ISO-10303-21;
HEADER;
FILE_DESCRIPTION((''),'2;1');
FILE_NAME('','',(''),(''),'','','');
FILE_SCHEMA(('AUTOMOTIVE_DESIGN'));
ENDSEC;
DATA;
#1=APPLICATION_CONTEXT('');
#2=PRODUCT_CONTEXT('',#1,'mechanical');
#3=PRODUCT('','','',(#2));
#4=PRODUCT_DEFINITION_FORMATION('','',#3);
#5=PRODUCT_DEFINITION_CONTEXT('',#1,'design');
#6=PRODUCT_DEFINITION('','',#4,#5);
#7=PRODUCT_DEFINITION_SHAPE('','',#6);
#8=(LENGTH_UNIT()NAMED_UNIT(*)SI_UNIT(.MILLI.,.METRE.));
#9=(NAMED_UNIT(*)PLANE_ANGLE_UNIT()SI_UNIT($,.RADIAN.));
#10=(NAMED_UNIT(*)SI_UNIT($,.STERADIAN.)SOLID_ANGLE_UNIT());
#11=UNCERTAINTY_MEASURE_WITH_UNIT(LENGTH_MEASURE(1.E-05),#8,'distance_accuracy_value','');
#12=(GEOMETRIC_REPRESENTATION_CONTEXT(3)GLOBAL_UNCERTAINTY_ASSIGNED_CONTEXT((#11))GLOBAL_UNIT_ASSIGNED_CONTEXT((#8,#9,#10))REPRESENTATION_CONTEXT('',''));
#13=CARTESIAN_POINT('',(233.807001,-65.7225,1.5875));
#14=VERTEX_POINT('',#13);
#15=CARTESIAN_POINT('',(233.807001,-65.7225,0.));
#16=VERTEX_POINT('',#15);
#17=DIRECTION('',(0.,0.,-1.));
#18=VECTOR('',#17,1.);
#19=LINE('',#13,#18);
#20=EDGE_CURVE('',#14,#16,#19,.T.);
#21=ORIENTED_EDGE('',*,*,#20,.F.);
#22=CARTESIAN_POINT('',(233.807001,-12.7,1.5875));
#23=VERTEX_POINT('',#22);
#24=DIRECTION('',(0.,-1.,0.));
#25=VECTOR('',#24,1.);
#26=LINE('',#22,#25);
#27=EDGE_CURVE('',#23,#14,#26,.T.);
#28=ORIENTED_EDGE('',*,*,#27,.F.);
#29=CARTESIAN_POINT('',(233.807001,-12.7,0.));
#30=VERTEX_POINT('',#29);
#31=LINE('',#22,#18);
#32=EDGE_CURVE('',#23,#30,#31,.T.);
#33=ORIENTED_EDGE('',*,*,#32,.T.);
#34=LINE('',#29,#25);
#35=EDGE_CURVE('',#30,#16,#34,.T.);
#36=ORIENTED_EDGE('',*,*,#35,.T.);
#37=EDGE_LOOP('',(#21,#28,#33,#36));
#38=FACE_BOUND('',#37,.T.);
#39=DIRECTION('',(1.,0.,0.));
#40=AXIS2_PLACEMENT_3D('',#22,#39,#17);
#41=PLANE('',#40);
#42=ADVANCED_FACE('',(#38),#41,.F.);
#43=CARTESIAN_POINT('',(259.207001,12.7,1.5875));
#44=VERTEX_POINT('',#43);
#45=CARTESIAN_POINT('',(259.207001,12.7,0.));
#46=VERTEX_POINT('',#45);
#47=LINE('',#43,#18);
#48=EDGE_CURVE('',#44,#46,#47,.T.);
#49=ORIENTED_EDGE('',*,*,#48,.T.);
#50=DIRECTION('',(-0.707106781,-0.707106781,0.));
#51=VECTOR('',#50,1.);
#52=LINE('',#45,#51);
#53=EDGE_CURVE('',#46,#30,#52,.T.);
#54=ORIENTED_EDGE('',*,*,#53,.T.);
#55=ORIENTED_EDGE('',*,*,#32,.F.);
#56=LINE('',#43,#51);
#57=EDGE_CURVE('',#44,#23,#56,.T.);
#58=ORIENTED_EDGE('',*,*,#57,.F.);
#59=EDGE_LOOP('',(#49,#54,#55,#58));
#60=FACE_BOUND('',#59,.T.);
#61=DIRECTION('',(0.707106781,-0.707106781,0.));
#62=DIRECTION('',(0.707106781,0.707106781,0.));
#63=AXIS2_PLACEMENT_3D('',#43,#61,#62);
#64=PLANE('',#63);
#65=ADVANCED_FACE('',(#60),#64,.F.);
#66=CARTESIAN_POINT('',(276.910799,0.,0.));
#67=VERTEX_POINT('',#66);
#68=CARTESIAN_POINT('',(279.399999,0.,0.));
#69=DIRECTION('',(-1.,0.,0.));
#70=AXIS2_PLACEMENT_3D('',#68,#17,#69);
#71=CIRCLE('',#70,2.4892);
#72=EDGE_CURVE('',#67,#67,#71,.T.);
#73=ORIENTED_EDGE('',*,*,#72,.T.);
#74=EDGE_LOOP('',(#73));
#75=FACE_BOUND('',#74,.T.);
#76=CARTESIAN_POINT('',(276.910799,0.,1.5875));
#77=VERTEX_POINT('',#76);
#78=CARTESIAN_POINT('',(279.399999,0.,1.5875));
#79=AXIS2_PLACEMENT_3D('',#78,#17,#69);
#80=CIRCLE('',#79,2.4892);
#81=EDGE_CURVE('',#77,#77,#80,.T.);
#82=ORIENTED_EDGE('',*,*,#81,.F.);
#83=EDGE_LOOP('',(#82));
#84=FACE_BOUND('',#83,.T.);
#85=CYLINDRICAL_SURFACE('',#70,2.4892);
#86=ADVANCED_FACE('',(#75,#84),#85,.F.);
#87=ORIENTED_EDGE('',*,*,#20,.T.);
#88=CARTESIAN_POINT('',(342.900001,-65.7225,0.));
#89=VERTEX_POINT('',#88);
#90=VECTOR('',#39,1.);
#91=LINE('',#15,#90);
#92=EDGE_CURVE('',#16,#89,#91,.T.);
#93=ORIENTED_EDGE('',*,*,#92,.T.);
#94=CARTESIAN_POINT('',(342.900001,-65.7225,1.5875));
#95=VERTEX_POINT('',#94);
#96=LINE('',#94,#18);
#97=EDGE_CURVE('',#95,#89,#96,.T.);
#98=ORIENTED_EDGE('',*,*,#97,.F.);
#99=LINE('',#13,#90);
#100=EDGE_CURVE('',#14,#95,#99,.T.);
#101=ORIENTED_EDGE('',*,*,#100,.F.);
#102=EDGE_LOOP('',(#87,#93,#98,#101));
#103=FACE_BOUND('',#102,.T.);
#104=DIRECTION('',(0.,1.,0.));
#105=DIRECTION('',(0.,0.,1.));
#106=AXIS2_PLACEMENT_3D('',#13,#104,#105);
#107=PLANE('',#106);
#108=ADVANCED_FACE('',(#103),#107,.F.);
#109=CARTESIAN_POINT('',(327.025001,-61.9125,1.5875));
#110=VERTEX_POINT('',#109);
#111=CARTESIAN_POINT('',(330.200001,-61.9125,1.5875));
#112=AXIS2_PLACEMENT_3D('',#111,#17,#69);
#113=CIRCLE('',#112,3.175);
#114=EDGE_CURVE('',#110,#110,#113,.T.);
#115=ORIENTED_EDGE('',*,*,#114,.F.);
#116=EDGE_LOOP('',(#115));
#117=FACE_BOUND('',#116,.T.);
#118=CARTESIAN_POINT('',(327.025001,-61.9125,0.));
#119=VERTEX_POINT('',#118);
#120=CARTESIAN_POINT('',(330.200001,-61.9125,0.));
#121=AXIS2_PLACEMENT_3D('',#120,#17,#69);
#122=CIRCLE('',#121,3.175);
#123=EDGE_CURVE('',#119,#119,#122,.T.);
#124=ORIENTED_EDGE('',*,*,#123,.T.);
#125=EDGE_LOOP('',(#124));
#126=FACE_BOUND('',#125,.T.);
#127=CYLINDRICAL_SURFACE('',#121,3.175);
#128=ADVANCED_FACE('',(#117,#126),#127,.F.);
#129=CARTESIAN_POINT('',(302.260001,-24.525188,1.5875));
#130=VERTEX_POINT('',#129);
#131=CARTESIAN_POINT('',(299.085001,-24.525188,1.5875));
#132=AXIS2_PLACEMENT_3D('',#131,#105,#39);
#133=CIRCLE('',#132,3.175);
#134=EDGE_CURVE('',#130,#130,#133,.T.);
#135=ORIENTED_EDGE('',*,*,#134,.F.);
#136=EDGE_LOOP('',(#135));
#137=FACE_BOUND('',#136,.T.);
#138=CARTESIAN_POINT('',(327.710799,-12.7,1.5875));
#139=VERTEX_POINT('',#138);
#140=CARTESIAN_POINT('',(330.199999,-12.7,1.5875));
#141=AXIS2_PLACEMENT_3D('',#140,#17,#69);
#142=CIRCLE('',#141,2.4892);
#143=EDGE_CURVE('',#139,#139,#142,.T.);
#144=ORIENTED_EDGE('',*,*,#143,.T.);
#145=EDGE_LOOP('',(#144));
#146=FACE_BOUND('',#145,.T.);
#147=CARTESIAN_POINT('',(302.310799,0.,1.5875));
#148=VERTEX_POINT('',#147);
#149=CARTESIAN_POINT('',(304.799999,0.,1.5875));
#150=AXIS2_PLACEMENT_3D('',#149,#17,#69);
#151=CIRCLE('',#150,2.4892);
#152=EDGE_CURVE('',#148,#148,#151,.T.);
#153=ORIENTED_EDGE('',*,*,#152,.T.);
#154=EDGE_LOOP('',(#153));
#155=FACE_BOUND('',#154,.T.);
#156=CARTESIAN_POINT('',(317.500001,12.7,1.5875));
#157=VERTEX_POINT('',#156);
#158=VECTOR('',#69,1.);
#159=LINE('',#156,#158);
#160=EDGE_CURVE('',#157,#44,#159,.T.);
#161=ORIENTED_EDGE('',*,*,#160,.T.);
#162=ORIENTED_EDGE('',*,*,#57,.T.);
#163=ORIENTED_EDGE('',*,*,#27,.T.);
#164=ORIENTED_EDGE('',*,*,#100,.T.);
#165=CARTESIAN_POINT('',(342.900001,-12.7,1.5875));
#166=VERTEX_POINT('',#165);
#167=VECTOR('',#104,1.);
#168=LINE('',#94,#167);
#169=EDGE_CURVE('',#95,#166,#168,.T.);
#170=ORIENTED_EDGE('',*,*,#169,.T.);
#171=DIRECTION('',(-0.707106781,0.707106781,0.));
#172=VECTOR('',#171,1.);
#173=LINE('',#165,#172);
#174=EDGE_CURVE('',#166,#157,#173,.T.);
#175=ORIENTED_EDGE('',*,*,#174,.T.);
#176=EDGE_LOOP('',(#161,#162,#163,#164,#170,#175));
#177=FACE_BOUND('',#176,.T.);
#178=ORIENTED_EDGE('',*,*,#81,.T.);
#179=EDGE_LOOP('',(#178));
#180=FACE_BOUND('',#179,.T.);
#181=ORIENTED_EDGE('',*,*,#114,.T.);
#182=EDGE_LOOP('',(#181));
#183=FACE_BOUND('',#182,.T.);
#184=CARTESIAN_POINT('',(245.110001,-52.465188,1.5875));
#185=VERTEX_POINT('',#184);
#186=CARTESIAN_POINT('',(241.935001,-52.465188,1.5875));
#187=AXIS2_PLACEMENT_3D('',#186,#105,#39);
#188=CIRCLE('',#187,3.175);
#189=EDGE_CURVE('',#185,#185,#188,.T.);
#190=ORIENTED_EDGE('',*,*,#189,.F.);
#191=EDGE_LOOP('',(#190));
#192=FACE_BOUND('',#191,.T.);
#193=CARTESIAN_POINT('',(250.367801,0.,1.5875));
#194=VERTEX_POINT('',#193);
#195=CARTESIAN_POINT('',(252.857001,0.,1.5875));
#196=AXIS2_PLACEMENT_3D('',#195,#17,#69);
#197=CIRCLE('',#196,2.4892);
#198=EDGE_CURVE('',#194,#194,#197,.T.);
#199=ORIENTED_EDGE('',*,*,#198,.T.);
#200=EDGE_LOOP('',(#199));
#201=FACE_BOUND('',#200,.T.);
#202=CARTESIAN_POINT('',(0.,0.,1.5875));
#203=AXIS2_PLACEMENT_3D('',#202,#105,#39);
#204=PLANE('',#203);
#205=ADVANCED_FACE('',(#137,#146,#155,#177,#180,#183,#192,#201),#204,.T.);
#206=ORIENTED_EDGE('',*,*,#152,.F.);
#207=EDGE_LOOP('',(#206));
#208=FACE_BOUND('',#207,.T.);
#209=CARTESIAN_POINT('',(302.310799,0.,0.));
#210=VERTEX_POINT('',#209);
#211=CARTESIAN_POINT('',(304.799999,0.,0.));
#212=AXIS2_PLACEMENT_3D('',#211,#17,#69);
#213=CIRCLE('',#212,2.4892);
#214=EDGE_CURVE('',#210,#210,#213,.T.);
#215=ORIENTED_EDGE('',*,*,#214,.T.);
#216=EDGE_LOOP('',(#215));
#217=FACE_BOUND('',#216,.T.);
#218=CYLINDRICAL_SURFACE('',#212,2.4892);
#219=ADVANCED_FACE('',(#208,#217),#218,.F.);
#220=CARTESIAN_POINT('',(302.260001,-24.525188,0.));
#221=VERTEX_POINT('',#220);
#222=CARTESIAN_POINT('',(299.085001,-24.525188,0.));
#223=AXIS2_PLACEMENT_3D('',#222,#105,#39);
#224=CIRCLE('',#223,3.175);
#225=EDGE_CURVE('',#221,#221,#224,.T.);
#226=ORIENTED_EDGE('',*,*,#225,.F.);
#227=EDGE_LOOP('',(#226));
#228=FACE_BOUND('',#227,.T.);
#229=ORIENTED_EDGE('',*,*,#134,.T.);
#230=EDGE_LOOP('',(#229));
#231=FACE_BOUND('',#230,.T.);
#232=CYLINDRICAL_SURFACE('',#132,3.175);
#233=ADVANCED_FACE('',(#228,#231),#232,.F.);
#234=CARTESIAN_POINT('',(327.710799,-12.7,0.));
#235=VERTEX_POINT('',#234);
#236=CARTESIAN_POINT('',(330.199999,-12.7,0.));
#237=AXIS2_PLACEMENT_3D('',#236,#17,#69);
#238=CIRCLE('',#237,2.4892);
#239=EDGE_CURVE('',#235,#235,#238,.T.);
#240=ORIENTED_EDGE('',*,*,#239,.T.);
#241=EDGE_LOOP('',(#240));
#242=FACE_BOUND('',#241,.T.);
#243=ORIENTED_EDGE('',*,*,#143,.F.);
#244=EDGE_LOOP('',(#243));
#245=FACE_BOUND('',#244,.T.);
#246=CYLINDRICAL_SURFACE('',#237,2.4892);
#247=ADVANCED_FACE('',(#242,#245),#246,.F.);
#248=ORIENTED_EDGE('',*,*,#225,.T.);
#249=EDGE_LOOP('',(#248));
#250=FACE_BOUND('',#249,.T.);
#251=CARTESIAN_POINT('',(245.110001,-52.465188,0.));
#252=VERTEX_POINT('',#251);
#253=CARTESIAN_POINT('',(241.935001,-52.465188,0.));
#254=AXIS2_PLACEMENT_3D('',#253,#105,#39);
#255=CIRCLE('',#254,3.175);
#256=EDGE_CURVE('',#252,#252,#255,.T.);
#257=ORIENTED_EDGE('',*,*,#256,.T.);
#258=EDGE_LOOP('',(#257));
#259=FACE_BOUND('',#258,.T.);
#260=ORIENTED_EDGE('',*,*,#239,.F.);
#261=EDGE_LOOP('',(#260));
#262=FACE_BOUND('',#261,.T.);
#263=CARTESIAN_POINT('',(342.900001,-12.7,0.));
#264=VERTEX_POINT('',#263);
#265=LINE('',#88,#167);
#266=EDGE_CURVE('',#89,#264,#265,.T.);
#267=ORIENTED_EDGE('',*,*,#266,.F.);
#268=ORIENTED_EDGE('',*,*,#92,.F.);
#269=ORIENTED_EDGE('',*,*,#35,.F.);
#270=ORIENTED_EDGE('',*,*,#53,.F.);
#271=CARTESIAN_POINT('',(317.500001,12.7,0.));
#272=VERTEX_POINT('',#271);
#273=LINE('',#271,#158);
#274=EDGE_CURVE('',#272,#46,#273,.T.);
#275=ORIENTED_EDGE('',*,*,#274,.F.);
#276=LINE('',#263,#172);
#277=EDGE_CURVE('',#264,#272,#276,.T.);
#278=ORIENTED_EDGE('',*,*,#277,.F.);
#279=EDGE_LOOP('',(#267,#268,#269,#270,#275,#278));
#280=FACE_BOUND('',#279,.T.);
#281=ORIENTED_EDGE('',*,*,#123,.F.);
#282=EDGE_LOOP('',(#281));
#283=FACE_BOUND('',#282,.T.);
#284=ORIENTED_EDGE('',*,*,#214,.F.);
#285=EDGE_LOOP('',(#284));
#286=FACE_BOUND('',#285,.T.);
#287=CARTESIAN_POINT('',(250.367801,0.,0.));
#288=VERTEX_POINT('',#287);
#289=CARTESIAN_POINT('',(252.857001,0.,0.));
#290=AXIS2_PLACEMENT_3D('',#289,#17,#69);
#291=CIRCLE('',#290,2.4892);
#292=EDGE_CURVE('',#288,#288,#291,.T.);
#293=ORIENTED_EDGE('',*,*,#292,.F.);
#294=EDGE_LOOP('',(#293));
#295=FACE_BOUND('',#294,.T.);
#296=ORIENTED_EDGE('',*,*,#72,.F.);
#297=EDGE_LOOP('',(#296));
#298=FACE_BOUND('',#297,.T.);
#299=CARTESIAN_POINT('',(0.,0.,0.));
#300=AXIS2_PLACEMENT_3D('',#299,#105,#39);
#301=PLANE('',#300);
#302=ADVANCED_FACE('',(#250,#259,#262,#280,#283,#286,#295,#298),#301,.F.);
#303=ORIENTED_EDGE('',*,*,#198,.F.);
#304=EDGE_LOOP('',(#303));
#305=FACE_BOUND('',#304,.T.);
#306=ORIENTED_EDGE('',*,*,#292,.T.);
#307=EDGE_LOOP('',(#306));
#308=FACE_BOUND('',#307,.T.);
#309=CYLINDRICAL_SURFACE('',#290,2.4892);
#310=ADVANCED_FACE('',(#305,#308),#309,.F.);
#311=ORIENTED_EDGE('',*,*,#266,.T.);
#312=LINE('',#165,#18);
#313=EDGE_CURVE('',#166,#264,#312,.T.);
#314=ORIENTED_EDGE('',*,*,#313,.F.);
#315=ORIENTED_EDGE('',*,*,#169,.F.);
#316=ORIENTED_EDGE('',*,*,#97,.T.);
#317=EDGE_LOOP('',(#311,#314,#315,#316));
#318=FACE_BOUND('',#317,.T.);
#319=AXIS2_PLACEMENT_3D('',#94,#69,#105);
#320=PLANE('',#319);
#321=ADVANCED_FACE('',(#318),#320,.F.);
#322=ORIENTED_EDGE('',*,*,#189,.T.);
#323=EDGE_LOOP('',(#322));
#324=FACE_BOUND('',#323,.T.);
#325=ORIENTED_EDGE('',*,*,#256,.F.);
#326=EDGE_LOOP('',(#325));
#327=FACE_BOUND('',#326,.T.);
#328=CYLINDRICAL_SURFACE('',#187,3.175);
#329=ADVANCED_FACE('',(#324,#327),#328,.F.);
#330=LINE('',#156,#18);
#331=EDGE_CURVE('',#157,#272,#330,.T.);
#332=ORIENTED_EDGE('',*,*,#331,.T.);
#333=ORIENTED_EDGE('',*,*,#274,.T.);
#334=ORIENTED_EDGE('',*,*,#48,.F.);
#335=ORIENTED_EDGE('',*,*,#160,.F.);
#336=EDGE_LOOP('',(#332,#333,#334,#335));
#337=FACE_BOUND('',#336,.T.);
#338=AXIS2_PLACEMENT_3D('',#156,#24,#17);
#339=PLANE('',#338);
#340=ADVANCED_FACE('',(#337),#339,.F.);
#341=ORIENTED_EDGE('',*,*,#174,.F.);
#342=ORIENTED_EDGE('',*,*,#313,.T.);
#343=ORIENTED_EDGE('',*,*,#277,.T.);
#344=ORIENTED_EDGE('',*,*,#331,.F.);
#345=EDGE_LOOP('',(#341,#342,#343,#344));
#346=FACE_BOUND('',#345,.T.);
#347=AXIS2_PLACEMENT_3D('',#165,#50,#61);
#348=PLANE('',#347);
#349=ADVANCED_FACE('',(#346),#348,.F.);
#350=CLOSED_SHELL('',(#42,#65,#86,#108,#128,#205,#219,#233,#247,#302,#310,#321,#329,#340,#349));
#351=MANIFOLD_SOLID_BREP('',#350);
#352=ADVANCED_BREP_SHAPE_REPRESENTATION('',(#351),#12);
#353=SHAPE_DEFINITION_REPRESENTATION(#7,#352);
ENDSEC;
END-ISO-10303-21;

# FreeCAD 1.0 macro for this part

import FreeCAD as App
import Part
import Sketcher
from FreeCAD import Vector
Q = App.Units.Quantity

doc = App.newDocument("Part")
body = doc.addObject("PartDesign::Body", "Body")

sketch1 = body.newObject("Sketcher::SketchObject", "Sketch")
sketch1.AttachmentSupport = (doc.getObject("XY_Plane"), [""])
sketch1.MapMode = "FlatFace"
sketch1.addGeometry(Part.LineSegment(Vector(234, -13, 0), Vector(234, -66, 0)), False)
sketch1.addGeometry(Part.LineSegment(Vector(234, -66, 0), Vector(343, -66, 0)), False)
sketch1.addGeometry(Part.LineSegment(Vector(343, -66, 0), Vector(343, -13, 0)), False)
sketch1.addGeometry(Part.LineSegment(Vector(343, -13, 0), Vector(318, 13, 0)), False)
sketch1.addGeometry(Part.LineSegment(Vector(318, 13, 0), Vector(259, 13, 0)), False)
sketch1.addGeometry(Part.LineSegment(Vector(259, 13, 0), Vector(234, -13, 0)), False)
sketch1.addConstraint(Sketcher.Constraint("Coincident", 0, 2, 1, 1))
sketch1.addConstraint(Sketcher.Constraint("Coincident", 1, 2, 2, 1))
sketch1.addConstraint(Sketcher.Constraint("Coincident", 2, 2, 3, 1))
sketch1.addConstraint(Sketcher.Constraint("Coincident", 3, 2, 4, 1))
sketch1.addConstraint(Sketcher.Constraint("Coincident", 4, 2, 5, 1))
sketch1.addConstraint(Sketcher.Constraint("Coincident", 5, 2, 0, 1))
sketch1.addConstraint(Sketcher.Constraint("Vertical", 0))
sketch1.addConstraint(Sketcher.Constraint("Horizontal", 1))
sketch1.addConstraint(Sketcher.Constraint("Vertical", 2))
sketch1.addConstraint(Sketcher.Constraint("Horizontal", 4))
sketch1.addConstraint(Sketcher.Constraint("Perpendicular", 3, 5))
sketch1.addConstraint(Sketcher.Constraint("Horizontal", 2, 2, 5, 2))
sketch1.addConstraint(Sketcher.Constraint("Equal", 3, 5))
sketch1.addConstraint(Sketcher.Constraint("DistanceX", 3, 2, 2, 2, Q("1 in")))
sketch1.addConstraint(Sketcher.Constraint("DistanceX", -1, 1, 1, 2, Q("13.5 in")))
sketch1.addConstraint(Sketcher.Constraint("DistanceY", 2, 2, -1, 1, Q("0.5 in")))
sketch1.addConstraint(Sketcher.Constraint("DistanceX", 1, 1, 1, 2, Q("4.295 in")))
sketch1.addConstraint(Sketcher.Constraint("DistanceY", 0, 2, 0, 1, Q("2.0875 in")))
pad1 = body.newObject("PartDesign::Pad", "Pad")
pad1.Profile = sketch1
pad1.Length = Q("0.0625 in")

sketch2 = body.newObject("Sketcher::SketchObject", "Sketch001")
sketch2.AttachmentSupport = (doc.getObject("XY_Plane"), [""])
sketch2.MapMode = "FlatFace"
sketch2.addGeometry(Part.Circle(Vector(330.2, -12.7, 0), Vector(0, 0, 1), 2.5), False)
sketch2.addGeometry(Part.Circle(Vector(304.8, 0, 0), Vector(0, 0, 1), 2.5), False)
sketch2.addGeometry(Part.Circle(Vector(279.4, 0, 0), Vector(0, 0, 1), 2.5), False)
sketch2.addGeometry(Part.Circle(Vector(252.9, 0, 0), Vector(0, 0, 1), 2.5), False)
sketch2.addConstraint(Sketcher.Constraint("Equal", 0, 1))
sketch2.addConstraint(Sketcher.Constraint("Equal", 1, 2))
sketch2.addConstraint(Sketcher.Constraint("Equal", 2, 3))
sketch2.addConstraint(Sketcher.Constraint("PointOnObject", 1, 3, -1))
sketch2.addConstraint(Sketcher.Constraint("PointOnObject", 2, 3, -1))
sketch2.addConstraint(Sketcher.Constraint("PointOnObject", 3, 3, -1))
sketch2.addConstraint(Sketcher.Constraint("Diameter", 0, Q("0.196 in")))
sketch2.addConstraint(Sketcher.Constraint("DistanceX", -1, 1, 0, 3, Q("13 in")))
sketch2.addConstraint(Sketcher.Constraint("DistanceX", -1, 1, 1, 3, Q("12 in")))
sketch2.addConstraint(Sketcher.Constraint("DistanceX", -1, 1, 2, 3, Q("11 in")))
sketch2.addConstraint(Sketcher.Constraint("DistanceY", 0, 3, -1, 1, Q("0.5 in")))
sketch2.addConstraint(Sketcher.Constraint("DistanceX", -1, 1, 3, 3, Q("9.955 in")))
doc.recompute()
hole = body.newObject("PartDesign::Hole", "Hole")
hole.Profile = sketch2
hole.ThreadType = "None"
hole.Diameter = Q("0.196 in")
hole.DepthType = "ThroughAll"
hole.Reversed = True

sketch3 = body.newObject("Sketcher::SketchObject", "Sketch002")
sketch3.AttachmentSupport = (doc.getObject("XY_Plane"), [""])
sketch3.MapMode = "FlatFace"
sketch3.addGeometry(Part.Circle(Vector(330.2, -61.9, 0), Vector(0, 0, 1), 3.2), False)
sketch3.addConstraint(Sketcher.Constraint("Diameter", 0, Q("0.25 in")))
sketch3.addConstraint(Sketcher.Constraint("DistanceX", -1, 1, 0, 3, Q("13 in")))
sketch3.addConstraint(Sketcher.Constraint("DistanceY", 0, 3, -1, 1, Q("2.4375 in")))
doc.recompute()
hole2 = body.newObject("PartDesign::Hole", "Hole001")
hole2.Profile = sketch3
hole2.ThreadType = "None"
hole2.Diameter = Q("0.25 in")
hole2.DepthType = "ThroughAll"
hole2.Reversed = True

sketch4 = body.newObject("Sketcher::SketchObject", "Sketch003")
sketch4.AttachmentSupport = (doc.getObject("XY_Plane"), [""])
sketch4.MapMode = "FlatFace"
sketch4.AttachmentOffset = App.Placement(Vector(0, 0, 0.0625 * 25.4), App.Rotation())
sketch4.addGeometry(Part.Circle(Vector(299.1, -24.5, 0), Vector(0, 0, 1), 3.2), False)
sketch4.addGeometry(Part.Circle(Vector(241.9, -52.5, 0), Vector(0, 0, 1), 3.2), False)
sketch4.addConstraint(Sketcher.Constraint("Equal", 0, 1))
sketch4.addConstraint(Sketcher.Constraint("Diameter", 0, Q("0.25 in")))
sketch4.addConstraint(Sketcher.Constraint("DistanceY", 1, 3, 0, 3, Q("1.1 in")))
sketch4.addConstraint(Sketcher.Constraint("DistanceX", 1, 3, 0, 3, Q("2.25 in")))
sketch4.addConstraint(Sketcher.Constraint("DistanceX", -1, 1, 0, 3, Q("11.775 in")))
sketch4.addConstraint(Sketcher.Constraint("DistanceY", 0, 3, -1, 1, Q("24.525188 mm")))
doc.recompute()
hole3 = body.newObject("PartDesign::Hole", "Hole002")
hole3.Profile = sketch4
hole3.ThreadType = "None"
hole3.Diameter = Q("0.25 in")
hole3.DepthType = "ThroughAll"

doc.recompute()
